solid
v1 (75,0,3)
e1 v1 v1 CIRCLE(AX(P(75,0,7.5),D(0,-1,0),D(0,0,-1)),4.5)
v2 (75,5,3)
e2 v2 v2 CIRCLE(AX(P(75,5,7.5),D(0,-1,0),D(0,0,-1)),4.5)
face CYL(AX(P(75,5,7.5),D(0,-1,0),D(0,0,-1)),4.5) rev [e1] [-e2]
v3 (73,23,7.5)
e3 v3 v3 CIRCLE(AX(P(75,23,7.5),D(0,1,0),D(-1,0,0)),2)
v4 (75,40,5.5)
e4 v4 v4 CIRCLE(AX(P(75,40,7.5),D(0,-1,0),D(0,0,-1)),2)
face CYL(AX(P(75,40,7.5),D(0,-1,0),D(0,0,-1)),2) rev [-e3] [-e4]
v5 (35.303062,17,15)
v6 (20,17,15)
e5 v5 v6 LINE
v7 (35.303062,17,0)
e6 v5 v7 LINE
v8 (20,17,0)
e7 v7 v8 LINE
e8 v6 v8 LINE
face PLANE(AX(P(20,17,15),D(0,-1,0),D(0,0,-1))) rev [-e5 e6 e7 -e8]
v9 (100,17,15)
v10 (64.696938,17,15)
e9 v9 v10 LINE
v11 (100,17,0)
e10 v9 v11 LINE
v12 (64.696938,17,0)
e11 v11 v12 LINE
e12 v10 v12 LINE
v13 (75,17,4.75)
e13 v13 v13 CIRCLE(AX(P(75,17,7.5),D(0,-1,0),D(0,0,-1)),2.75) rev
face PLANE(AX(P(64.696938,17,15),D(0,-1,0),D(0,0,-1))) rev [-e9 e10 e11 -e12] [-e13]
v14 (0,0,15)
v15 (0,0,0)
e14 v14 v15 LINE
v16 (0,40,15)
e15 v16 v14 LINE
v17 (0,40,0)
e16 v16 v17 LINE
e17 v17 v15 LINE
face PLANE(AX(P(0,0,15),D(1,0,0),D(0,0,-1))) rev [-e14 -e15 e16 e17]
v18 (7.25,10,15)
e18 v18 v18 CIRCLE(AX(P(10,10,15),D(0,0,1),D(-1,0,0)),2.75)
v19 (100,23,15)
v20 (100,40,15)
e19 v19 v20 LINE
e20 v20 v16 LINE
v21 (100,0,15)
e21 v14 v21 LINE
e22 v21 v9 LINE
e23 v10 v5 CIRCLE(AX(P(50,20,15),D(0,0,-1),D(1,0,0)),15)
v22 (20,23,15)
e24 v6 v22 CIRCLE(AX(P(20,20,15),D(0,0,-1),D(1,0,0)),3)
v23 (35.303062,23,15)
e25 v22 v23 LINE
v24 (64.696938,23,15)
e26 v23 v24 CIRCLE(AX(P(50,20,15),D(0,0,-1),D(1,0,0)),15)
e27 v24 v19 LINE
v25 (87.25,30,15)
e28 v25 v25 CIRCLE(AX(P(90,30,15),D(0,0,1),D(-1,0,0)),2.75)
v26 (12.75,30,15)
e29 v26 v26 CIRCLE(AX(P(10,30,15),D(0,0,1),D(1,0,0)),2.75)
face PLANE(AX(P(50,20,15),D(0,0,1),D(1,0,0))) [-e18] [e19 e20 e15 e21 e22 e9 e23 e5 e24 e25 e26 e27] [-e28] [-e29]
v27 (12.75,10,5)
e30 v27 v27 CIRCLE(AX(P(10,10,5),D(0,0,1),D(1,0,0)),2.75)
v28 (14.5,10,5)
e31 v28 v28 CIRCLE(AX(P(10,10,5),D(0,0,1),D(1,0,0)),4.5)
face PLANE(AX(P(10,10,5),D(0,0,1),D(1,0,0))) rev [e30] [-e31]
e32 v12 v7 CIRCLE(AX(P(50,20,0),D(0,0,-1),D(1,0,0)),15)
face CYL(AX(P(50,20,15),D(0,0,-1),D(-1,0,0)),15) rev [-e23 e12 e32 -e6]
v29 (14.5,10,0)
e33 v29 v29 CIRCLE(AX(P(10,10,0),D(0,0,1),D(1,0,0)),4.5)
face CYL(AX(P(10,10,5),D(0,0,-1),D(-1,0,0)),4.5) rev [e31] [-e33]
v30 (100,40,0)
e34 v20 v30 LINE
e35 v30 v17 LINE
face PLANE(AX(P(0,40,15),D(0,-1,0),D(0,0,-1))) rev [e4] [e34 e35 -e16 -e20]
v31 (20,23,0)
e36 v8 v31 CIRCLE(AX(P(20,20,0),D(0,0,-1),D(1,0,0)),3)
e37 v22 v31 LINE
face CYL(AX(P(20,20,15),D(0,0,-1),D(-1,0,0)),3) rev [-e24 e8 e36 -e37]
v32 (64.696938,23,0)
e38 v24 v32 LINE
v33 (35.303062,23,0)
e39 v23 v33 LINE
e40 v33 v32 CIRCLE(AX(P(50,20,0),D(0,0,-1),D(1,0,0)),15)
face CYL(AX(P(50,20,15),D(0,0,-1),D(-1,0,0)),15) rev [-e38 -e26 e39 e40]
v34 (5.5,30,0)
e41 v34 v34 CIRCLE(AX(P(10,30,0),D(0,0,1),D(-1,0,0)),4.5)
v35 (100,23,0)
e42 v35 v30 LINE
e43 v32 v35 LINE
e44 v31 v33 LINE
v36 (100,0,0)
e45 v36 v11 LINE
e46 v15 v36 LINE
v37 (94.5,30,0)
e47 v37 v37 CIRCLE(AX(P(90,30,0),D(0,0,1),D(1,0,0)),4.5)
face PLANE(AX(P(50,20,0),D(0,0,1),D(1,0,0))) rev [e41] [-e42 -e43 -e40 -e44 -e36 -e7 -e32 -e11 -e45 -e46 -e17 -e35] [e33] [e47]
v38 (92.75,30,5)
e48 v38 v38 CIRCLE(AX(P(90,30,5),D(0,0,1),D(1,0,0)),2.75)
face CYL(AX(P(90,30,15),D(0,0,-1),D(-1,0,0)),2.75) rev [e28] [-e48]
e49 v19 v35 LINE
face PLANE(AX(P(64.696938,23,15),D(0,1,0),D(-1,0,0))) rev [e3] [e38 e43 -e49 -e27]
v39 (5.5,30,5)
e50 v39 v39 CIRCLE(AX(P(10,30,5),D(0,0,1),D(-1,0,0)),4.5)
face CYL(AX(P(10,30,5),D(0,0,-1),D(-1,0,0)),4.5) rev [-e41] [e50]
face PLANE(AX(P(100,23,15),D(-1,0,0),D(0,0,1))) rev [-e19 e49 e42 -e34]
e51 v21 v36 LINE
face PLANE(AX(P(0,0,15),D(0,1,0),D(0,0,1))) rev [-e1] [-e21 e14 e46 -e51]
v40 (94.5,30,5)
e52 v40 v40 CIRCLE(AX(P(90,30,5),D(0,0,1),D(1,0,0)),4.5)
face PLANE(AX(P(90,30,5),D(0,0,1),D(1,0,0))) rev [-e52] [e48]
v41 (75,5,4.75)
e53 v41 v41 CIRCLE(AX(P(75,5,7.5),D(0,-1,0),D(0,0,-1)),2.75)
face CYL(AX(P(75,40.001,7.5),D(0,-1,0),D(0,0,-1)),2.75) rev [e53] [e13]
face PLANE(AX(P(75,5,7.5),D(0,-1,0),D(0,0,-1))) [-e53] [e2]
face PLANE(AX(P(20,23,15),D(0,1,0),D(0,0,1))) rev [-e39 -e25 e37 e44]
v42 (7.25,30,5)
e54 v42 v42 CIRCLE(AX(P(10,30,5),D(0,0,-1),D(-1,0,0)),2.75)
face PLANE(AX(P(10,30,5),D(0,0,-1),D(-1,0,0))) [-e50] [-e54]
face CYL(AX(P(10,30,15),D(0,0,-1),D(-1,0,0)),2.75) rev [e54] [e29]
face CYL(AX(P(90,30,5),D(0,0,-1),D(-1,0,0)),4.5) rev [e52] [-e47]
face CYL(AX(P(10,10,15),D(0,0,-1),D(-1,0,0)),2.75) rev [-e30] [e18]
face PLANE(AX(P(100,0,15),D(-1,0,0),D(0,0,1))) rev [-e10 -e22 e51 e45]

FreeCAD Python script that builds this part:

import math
import FreeCAD as App
import Part
import Sketcher

V = App.Vector
Q = App.Units.Quantity

doc = App.newDocument("Part")
params = doc.addObject("Spreadsheet::Sheet", "Params")
for row, (alias, value) in enumerate([
    ("sketch1_radius", "15 mm"),
    ("sketch1_radius2", "3 mm"),
    ("sketch1_diameter", "5.5 mm"),
    ("sketch1_width", "100 mm"),
    ("sketch1_height", "17 mm"),
    ("pad1_length", "15 mm"),
    ("sketch2_diameter", "4 mm"),
    ("sketch3_diameter", "9 mm"),
    ("pocket2_length", "5 mm"),
    ("sketch4_diameter", "9 mm"),
    ("pocket3_length", "5 mm"),
    ("sketch5_diameter", "5.5 mm"),
    ("pocket4_length", "12 mm"),
], start=1):
    params.set(f"A{row}", alias)
    params.set(f"B{row}", "=" + value)
    params.setAlias(f"B{row}", alias)

body = doc.addObject("PartDesign::Body", "Body")

# Sketch on XY plane
sketch1 = doc.addObject("Sketcher::SketchObject", "Sketch")
body.addObject(sketch1)
sketch1.AttachmentSupport = (doc.XY_Plane, [""])
sketch1.MapMode = "FlatFace"
sketch1.addGeometry(Part.LineSegment(V(0, 0, 0), V(100, 0, 0)), False)
sketch1.addGeometry(Part.LineSegment(V(100, 0, 0), V(100, 17, 0)), False)
sketch1.addGeometry(Part.LineSegment(V(100, 17, 0), V(64.7, 17, 0)), False)
sketch1.addGeometry(Part.ArcOfCircle(Part.Circle(V(50, 20, 0), V(0, 0, 1), 15), math.radians(-168), math.radians(-12)), False)
sketch1.addGeometry(Part.LineSegment(V(35.3, 17, 0), V(20, 17, 0)), False)
sketch1.addGeometry(Part.ArcOfCircle(Part.Circle(V(20, 20, 0), V(0, 0, 1), 3), math.radians(90), math.radians(270)), False)
sketch1.addGeometry(Part.LineSegment(V(20, 23, 0), V(35.3, 23, 0)), False)
sketch1.addGeometry(Part.ArcOfCircle(Part.Circle(V(50, 20, 0), V(0, 0, 1), 15), math.radians(12), math.radians(168)), False)
sketch1.addGeometry(Part.LineSegment(V(64.7, 23, 0), V(100, 23, 0)), False)
sketch1.addGeometry(Part.LineSegment(V(100, 23, 0), V(100, 40, 0)), False)
sketch1.addGeometry(Part.LineSegment(V(100, 40, 0), V(0, 40, 0)), False)
sketch1.addGeometry(Part.LineSegment(V(0, 40, 0), V(0, 0, 0)), False)
sketch1.addGeometry(Part.Circle(V(10, 10, 0), V(0, 0, 1), 2.8), False)
sketch1.addGeometry(Part.Circle(V(10, 30, 0), V(0, 0, 1), 2.8), False)
sketch1.addGeometry(Part.Circle(V(90, 30, 0), V(0, 0, 1), 2.8), False)
sketch1.addConstraint(Sketcher.Constraint("Coincident", 0, 2, 1, 1))
sketch1.addConstraint(Sketcher.Constraint("Coincident", 1, 2, 2, 1))
sketch1.addConstraint(Sketcher.Constraint("Coincident", 2, 2, 3, 2))
sketch1.addConstraint(Sketcher.Constraint("Coincident", 3, 1, 4, 1))
sketch1.addConstraint(Sketcher.Constraint("Tangent", 4, 2, 5, 2))
sketch1.addConstraint(Sketcher.Constraint("Tangent", 5, 1, 6, 1))
sketch1.addConstraint(Sketcher.Constraint("Coincident", 6, 2, 7, 2))
sketch1.addConstraint(Sketcher.Constraint("Coincident", 7, 1, 8, 1))
sketch1.addConstraint(Sketcher.Constraint("Coincident", 8, 2, 9, 1))
sketch1.addConstraint(Sketcher.Constraint("Coincident", 9, 2, 10, 1))
sketch1.addConstraint(Sketcher.Constraint("Coincident", 10, 2, 11, 1))
sketch1.addConstraint(Sketcher.Constraint("Coincident", 11, 2, 0, 1))
sketch1.addConstraint(Sketcher.Constraint("Horizontal", 0))
sketch1.addConstraint(Sketcher.Constraint("Vertical", 1))
sketch1.addConstraint(Sketcher.Constraint("Horizontal", 2))
sketch1.addConstraint(Sketcher.Constraint("Horizontal", 4))
sketch1.addConstraint(Sketcher.Constraint("Horizontal", 6))
sketch1.addConstraint(Sketcher.Constraint("Horizontal", 8))
sketch1.addConstraint(Sketcher.Constraint("Vertical", 9))
sketch1.addConstraint(Sketcher.Constraint("Horizontal", 10))
sketch1.addConstraint(Sketcher.Constraint("Vertical", 11))
sketch1.addConstraint(Sketcher.Constraint("Coincident", 11, 2, -1, 1))
sketch1.addConstraint(Sketcher.Constraint("Coincident", 7, 3, 3, 3))
sketch1.addConstraint(Sketcher.Constraint("Equal", 3, 7))
sketch1.addConstraint(Sketcher.Constraint("Equal", 12, 13))
sketch1.addConstraint(Sketcher.Constraint("Equal", 13, 14))
sketch1.addConstraint(Sketcher.Constraint("Horizontal", 3, 3, 5, 3))
sketch1.addConstraint(Sketcher.Constraint("Horizontal", 13, 3, 14, 3))
sketch1.addConstraint(Sketcher.Constraint("Horizontal", 2, 2, 3, 1))
sketch1.addConstraint(Sketcher.Constraint("Horizontal", 6, 2, 7, 1))
sketch1.addConstraint(Sketcher.Constraint("Vertical", 12, 3, 13, 3))
sketch1.addConstraint(Sketcher.Constraint("Vertical", 1, 2, 8, 2))
sketch1.addConstraint(Sketcher.Constraint("Equal", 1, 9))
sketch1.addConstraint(Sketcher.Constraint("Radius", 3, Q("15 mm")))
sketch1.addConstraint(Sketcher.Constraint("Radius", 5, Q("3 mm")))
sketch1.addConstraint(Sketcher.Constraint("Diameter", 12, Q("5.5 mm")))
sketch1.addConstraint(Sketcher.Constraint("DistanceX", 0, 1, 0, 2, Q("100 mm")))
sketch1.addConstraint(Sketcher.Constraint("DistanceY", 1, 1, 1, 2, Q("17 mm")))
sketch1.addConstraint(Sketcher.Constraint("DistanceX", -1, 1, 3, 3, Q("50 mm")))
sketch1.addConstraint(Sketcher.Constraint("DistanceX", -1, 1, 5, 3, Q("20 mm")))
sketch1.addConstraint(Sketcher.Constraint("DistanceX", -1, 1, 12, 3, Q("10 mm")))
sketch1.addConstraint(Sketcher.Constraint("DistanceY", -1, 1, 12, 3, Q("10 mm")))
sketch1.addConstraint(Sketcher.Constraint("DistanceY", -1, 1, 13, 3, Q("30 mm")))
sketch1.addConstraint(Sketcher.Constraint("DistanceX", -1, 1, 14, 3, Q("90 mm")))
sketch1.setExpression("Constraints[33]", "Params.sketch1_radius")
sketch1.setExpression("Constraints[34]", "Params.sketch1_radius2")
sketch1.setExpression("Constraints[35]", "Params.sketch1_diameter")
sketch1.setExpression("Constraints[36]", "Params.sketch1_width")
sketch1.setExpression("Constraints[37]", "Params.sketch1_height")
pad1 = doc.addObject("PartDesign::Pad", "Pad")
body.addObject(pad1)
pad1.Profile = sketch1
pad1.setExpression("Length", "Params.pad1_length")

# Sketch on XZ plane
sketch2 = doc.addObject("Sketcher::SketchObject", "Sketch001")
body.addObject(sketch2)
sketch2.AttachmentSupport = (doc.XZ_Plane, [""])
sketch2.MapMode = "FlatFace"
sketch2.addGeometry(Part.Circle(V(75, 7.5, 0), V(0, 0, 1), 2), False)
sketch2.addConstraint(Sketcher.Constraint("Diameter", 0, Q("4 mm")))
sketch2.addConstraint(Sketcher.Constraint("DistanceX", -1, 1, 0, 3, Q("75 mm")))
sketch2.addConstraint(Sketcher.Constraint("DistanceY", -1, 1, 0, 3, Q("7.5 mm")))
sketch2.setExpression("Constraints[0]", "Params.sketch2_diameter")
pocket1 = doc.addObject("PartDesign::Pocket", "Pocket")
body.addObject(pocket1)
pocket1.Profile = sketch2
pocket1.Type = "ThroughAll"

# Sketch on XZ plane
sketch3 = doc.addObject("Sketcher::SketchObject", "Sketch002")
body.addObject(sketch3)
sketch3.AttachmentSupport = (doc.XZ_Plane, [""])
sketch3.MapMode = "FlatFace"
sketch3.addGeometry(Part.Circle(V(75, 7.5, 0), V(0, 0, 1), 4.5), False)
sketch3.addConstraint(Sketcher.Constraint("Diameter", 0, Q("9 mm")))
sketch3.addConstraint(Sketcher.Constraint("DistanceX", -1, 1, 0, 3, Q("75 mm")))
sketch3.addConstraint(Sketcher.Constraint("DistanceY", -1, 1, 0, 3, Q("7.5 mm")))
sketch3.setExpression("Constraints[0]", "Params.sketch3_diameter")
pocket2 = doc.addObject("PartDesign::Pocket", "Pocket001")
body.addObject(pocket2)
pocket2.Profile = sketch3
pocket2.setExpression("Length", "Params.pocket2_length")

# Sketch on XY plane
sketch4 = doc.addObject("Sketcher::SketchObject", "Sketch003")
body.addObject(sketch4)
sketch4.AttachmentSupport = (doc.XY_Plane, [""])
sketch4.MapMode = "FlatFace"
sketch4.addGeometry(Part.Circle(V(10, 10, 0), V(0, 0, 1), 4.5), False)
sketch4.addGeometry(Part.Circle(V(10, 30, 0), V(0, 0, 1), 4.5), False)
sketch4.addGeometry(Part.Circle(V(90, 30, 0), V(0, 0, 1), 4.5), False)
sketch4.addConstraint(Sketcher.Constraint("Equal", 0, 1))
sketch4.addConstraint(Sketcher.Constraint("Equal", 1, 2))
sketch4.addConstraint(Sketcher.Constraint("Horizontal", 1, 3, 2, 3))
sketch4.addConstraint(Sketcher.Constraint("Vertical", 0, 3, 1, 3))
sketch4.addConstraint(Sketcher.Constraint("Diameter", 0, Q("9 mm")))
sketch4.addConstraint(Sketcher.Constraint("DistanceX", -1, 1, 0, 3, Q("10 mm")))
sketch4.addConstraint(Sketcher.Constraint("DistanceY", -1, 1, 0, 3, Q("10 mm")))
sketch4.addConstraint(Sketcher.Constraint("DistanceY", -1, 1, 1, 3, Q("30 mm")))
sketch4.addConstraint(Sketcher.Constraint("DistanceX", -1, 1, 2, 3, Q("90 mm")))
sketch4.setExpression("Constraints[4]", "Params.sketch4_diameter")
pocket3 = doc.addObject("PartDesign::Pocket", "Pocket002")
body.addObject(pocket3)
pocket3.Profile = sketch4
pocket3.setExpression("Length", "Params.pocket3_length")
pocket3.Reversed = True

# Sketch on XZ plane
sketch5 = doc.addObject("Sketcher::SketchObject", "Sketch004")
body.addObject(sketch5)
sketch5.AttachmentSupport = (doc.XZ_Plane, [""])
sketch5.MapMode = "FlatFace"
sketch5.AttachmentOffset = App.Placement(V(0, 0, -5), App.Rotation())
sketch5.addGeometry(Part.Circle(V(75, 7.5, 0), V(0, 0, 1), 2.8), False)
sketch5.addConstraint(Sketcher.Constraint("Diameter", 0, Q("5.5 mm")))
sketch5.addConstraint(Sketcher.Constraint("DistanceX", -1, 1, 0, 3, Q("75 mm")))
sketch5.addConstraint(Sketcher.Constraint("DistanceY", -1, 1, 0, 3, Q("7.5 mm")))
sketch5.setExpression("Constraints[0]", "Params.sketch5_diameter")
pocket4 = doc.addObject("PartDesign::Pocket", "Pocket003")
body.addObject(pocket4)
pocket4.Profile = sketch5
pocket4.setExpression("Length", "Params.pocket4_length")

doc.recompute()
